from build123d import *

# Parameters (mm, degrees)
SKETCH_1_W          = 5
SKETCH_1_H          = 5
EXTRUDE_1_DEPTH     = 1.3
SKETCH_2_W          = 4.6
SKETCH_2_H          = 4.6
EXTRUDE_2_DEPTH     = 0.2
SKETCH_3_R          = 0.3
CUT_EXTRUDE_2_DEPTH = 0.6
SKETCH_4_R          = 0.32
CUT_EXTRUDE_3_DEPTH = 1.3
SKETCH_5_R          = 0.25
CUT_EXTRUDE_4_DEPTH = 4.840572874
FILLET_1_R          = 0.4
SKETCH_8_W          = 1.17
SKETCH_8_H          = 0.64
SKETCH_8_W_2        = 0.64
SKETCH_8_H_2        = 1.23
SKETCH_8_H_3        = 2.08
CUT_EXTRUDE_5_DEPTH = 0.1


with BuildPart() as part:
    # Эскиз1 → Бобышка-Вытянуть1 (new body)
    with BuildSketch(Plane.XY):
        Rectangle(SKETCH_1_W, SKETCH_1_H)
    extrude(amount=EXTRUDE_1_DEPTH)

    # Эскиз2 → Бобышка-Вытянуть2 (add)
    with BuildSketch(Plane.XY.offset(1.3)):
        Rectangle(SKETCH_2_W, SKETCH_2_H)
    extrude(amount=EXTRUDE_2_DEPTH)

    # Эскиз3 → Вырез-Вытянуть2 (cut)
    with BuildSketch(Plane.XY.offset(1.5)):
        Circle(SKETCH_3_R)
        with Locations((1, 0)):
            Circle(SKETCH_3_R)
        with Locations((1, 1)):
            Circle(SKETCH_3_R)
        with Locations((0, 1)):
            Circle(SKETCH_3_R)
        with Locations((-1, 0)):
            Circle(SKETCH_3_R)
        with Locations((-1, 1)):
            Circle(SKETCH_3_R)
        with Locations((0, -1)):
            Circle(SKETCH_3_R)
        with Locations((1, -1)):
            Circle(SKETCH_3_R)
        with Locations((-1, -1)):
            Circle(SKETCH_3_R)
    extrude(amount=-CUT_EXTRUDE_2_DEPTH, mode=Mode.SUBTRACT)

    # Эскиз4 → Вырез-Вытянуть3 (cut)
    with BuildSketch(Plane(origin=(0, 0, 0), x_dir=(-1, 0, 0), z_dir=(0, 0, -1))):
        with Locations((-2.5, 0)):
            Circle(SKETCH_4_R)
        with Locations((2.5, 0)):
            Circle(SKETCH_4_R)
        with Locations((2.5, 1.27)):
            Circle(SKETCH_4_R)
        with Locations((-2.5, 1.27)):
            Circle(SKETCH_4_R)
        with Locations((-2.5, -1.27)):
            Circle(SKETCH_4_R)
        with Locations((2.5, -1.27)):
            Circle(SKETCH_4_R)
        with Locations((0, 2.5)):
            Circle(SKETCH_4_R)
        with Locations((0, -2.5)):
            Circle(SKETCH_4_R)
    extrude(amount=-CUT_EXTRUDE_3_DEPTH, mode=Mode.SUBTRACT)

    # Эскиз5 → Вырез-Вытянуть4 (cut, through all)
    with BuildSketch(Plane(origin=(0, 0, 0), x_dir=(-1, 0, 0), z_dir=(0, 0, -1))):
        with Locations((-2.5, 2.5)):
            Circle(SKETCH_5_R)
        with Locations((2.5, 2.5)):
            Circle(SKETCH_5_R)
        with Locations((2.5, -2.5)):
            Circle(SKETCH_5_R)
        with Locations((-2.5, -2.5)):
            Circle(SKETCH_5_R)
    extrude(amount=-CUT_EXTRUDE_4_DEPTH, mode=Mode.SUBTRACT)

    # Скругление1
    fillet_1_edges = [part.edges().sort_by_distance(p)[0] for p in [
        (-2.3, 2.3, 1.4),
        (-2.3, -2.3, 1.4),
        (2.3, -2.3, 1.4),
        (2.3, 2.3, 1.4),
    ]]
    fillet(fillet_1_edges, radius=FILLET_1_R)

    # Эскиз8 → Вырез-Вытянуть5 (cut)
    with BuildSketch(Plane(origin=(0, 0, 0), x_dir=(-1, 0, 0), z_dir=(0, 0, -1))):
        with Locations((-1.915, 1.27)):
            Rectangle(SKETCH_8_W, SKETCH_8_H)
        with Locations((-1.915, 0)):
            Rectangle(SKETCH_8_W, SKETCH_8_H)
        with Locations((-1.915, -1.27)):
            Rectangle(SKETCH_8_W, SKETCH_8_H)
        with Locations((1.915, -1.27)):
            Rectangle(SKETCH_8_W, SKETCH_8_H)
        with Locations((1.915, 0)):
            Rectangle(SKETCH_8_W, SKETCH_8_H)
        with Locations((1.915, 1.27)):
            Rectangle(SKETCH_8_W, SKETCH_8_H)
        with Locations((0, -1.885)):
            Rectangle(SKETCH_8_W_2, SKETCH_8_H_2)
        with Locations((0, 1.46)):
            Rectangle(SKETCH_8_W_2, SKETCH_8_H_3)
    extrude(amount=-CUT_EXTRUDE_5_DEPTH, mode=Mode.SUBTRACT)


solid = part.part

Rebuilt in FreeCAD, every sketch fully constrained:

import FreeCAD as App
import Part
import Sketcher
Q = App.Units.Quantity


def edges_at(feature, points):
    """Names of the edges that pass closest to the given points."""
    edges = feature.Shape.Edges
    near = lambda p: min(range(len(edges)), key=lambda i: edges[i].distToShape(Part.Vertex(*p))[0])
    return sorted({f"Edge{near(p) + 1}" for p in points})

doc = App.newDocument("Part")
body = doc.addObject("PartDesign::Body", "Body")

# Sketch on XY plane
sketch1 = doc.addObject("Sketcher::SketchObject", "Sketch")
body.addObject(sketch1)
sketch1.AttachmentSupport = (doc.XY_Plane, [""])
sketch1.MapMode = "FlatFace"
sketch1.addGeometry([
    Part.LineSegment(App.Vector(-2, 2, 0), App.Vector(-2, -2, 0)),
    Part.LineSegment(App.Vector(-2, -2, 0), App.Vector(2, -2, 0)),
    Part.LineSegment(App.Vector(2, -2, 0), App.Vector(2, 2, 0)),
    Part.LineSegment(App.Vector(2, 2, 0), App.Vector(-2, 2, 0)),
], False)
sketch1.addConstraint([
    Sketcher.Constraint("Coincident", 0, 2, 1, 1),
    Sketcher.Constraint("Coincident", 1, 2, 2, 1),
    Sketcher.Constraint("Coincident", 2, 2, 3, 1),
    Sketcher.Constraint("Coincident", 3, 2, 0, 1),
    Sketcher.Constraint("Vertical", 0),
    Sketcher.Constraint("Horizontal", 1),
    Sketcher.Constraint("Vertical", 2),
    Sketcher.Constraint("Horizontal", 3),
    Sketcher.Constraint("Symmetric", 0, 2, 2, 2, -1, 1),
    Sketcher.Constraint("Equal", 3, 0),
    Sketcher.Constraint("DistanceX", 1, 1, 1, 2, Q("5 mm")),
])
pad1 = doc.addObject("PartDesign::Pad", "Pad")
body.addObject(pad1)
pad1.Profile = sketch1
pad1.Length = 1.3

# Sketch on XY plane
sketch2 = doc.addObject("Sketcher::SketchObject", "Sketch001")
body.addObject(sketch2)
sketch2.AttachmentSupport = (doc.XY_Plane, [""])
sketch2.MapMode = "FlatFace"
sketch2.AttachmentOffset = App.Placement(App.Vector(0, 0, 1.3), App.Rotation())
sketch2.addGeometry([
    Part.LineSegment(App.Vector(-2.3, 2.3, 0), App.Vector(-2.3, -2.3, 0)),
    Part.LineSegment(App.Vector(-2.3, -2.3, 0), App.Vector(2.3, -2.3, 0)),
    Part.LineSegment(App.Vector(2.3, -2.3, 0), App.Vector(2.3, 2.3, 0)),
    Part.LineSegment(App.Vector(2.3, 2.3, 0), App.Vector(-2.3, 2.3, 0)),
], False)
sketch2.addConstraint([
    Sketcher.Constraint("Coincident", 0, 2, 1, 1),
    Sketcher.Constraint("Coincident", 1, 2, 2, 1),
    Sketcher.Constraint("Coincident", 2, 2, 3, 1),
    Sketcher.Constraint("Coincident", 3, 2, 0, 1),
    Sketcher.Constraint("Vertical", 0),
    Sketcher.Constraint("Horizontal", 1),
    Sketcher.Constraint("Vertical", 2),
    Sketcher.Constraint("Horizontal", 3),
    Sketcher.Constraint("Symmetric", 0, 2, 2, 2, -1, 1),
    Sketcher.Constraint("Equal", 3, 0),
    Sketcher.Constraint("DistanceX", 1, 1, 1, 2, Q("4.6 mm")),
])
pad2 = doc.addObject("PartDesign::Pad", "Pad001")
body.addObject(pad2)
pad2.Profile = sketch2
pad2.Length = 0.2

# Sketch on XY plane
sketch3 = doc.addObject("Sketcher::SketchObject", "Sketch002")
body.addObject(sketch3)
sketch3.AttachmentSupport = (doc.XY_Plane, [""])
sketch3.MapMode = "FlatFace"
sketch3.AttachmentOffset = App.Placement(App.Vector(0, 0, 1.5), App.Rotation())
sketch3.addGeometry([
    Part.Circle(App.Vector(0, 0, 0), App.Vector(0, 0, 1), 0.3),  # 0
    Part.Circle(App.Vector(1, 0, 0), App.Vector(0, 0, 1), 0.3),  # 1
    Part.Circle(App.Vector(1, 1, 0), App.Vector(0, 0, 1), 0.3),  # 2
    Part.Circle(App.Vector(0, 1, 0), App.Vector(0, 0, 1), 0.3),  # 3
    Part.Circle(App.Vector(-1, 0, 0), App.Vector(0, 0, 1), 0.3),  # 4
    Part.Circle(App.Vector(-1, 1, 0), App.Vector(0, 0, 1), 0.3),  # 5
    Part.Circle(App.Vector(0, -1, 0), App.Vector(0, 0, 1), 0.3),  # 6
    Part.Circle(App.Vector(1, -1, 0), App.Vector(0, 0, 1), 0.3),  # 7
    Part.Circle(App.Vector(-1, -1, 0), App.Vector(0, 0, 1), 0.3),  # 8
], False)
sketch3.addConstraint([
    Sketcher.Constraint("Coincident", 0, 3, -1, 1),
    Sketcher.Constraint("Equal", 0, 1),
    Sketcher.Constraint("Equal", 1, 2),
    Sketcher.Constraint("Equal", 2, 3),
    Sketcher.Constraint("Equal", 3, 4),
    Sketcher.Constraint("Equal", 4, 5),
    Sketcher.Constraint("Equal", 5, 6),
    Sketcher.Constraint("Equal", 6, 7),
    Sketcher.Constraint("Equal", 7, 8),
    Sketcher.Constraint("Symmetric", 1, 3, 4, 3, -1, 1),
    Sketcher.Constraint("Symmetric", 3, 3, 6, 3, -1, 1),
    Sketcher.Constraint("Symmetric", 5, 3, 7, 3, -1, 1),
    Sketcher.Constraint("Symmetric", 2, 3, 8, 3, -1, 1),
    Sketcher.Constraint("Symmetric", 2, 3, 5, 3, -2),
    Sketcher.Constraint("PointOnObject", 1, 3, -1),
    Sketcher.Constraint("PointOnObject", 3, 3, -2),
    Sketcher.Constraint("Horizontal", 2, 3, 3, 3),
    Sketcher.Constraint("Vertical", 1, 3, 2, 3),
    Sketcher.Constraint("Diameter", 0, Q("0.6 mm")),
    Sketcher.Constraint("DistanceX", -1, 1, 1, 3, Q("1 mm")),
    Sketcher.Constraint("DistanceY", -1, 1, 2, 3, Q("1 mm")),
])
pocket1 = doc.addObject("PartDesign::Pocket", "Pocket")
body.addObject(pocket1)
pocket1.Profile = sketch3
pocket1.Length = 0.6

# Sketch on XY plane
sketch4 = doc.addObject("Sketcher::SketchObject", "Sketch003")
body.addObject(sketch4)
sketch4.AttachmentSupport = (doc.XY_Plane, [""])
sketch4.MapMode = "FlatFace"
sketch4.addGeometry([
    Part.Circle(App.Vector(2.5, 0, 0), App.Vector(0, 0, 1), 0.32),  # 0
    Part.Circle(App.Vector(-2.5, 0, 0), App.Vector(0, 0, 1), 0.32),  # 1
    Part.Circle(App.Vector(-2.5, 1.27, 0), App.Vector(0, 0, 1), 0.32),  # 2
    Part.Circle(App.Vector(2.5, 1.27, 0), App.Vector(0, 0, 1), 0.32),  # 3
    Part.Circle(App.Vector(2.5, -1.27, 0), App.Vector(0, 0, 1), 0.32),  # 4
    Part.Circle(App.Vector(-2.5, -1.27, 0), App.Vector(0, 0, 1), 0.32),  # 5
    Part.Circle(App.Vector(0, 2.5, 0), App.Vector(0, 0, 1), 0.32),  # 6
    Part.Circle(App.Vector(0, -2.5, 0), App.Vector(0, 0, 1), 0.32),  # 7
], False)
sketch4.addConstraint([
    Sketcher.Constraint("Equal", 0, 1),
    Sketcher.Constraint("Equal", 1, 2),
    Sketcher.Constraint("Equal", 2, 3),
    Sketcher.Constraint("Equal", 3, 4),
    Sketcher.Constraint("Equal", 4, 5),
    Sketcher.Constraint("Equal", 5, 6),
    Sketcher.Constraint("Equal", 6, 7),
    Sketcher.Constraint("Symmetric", 0, 3, 1, 3, -1, 1),
    Sketcher.Constraint("Symmetric", 2, 3, 4, 3, -1, 1),
    Sketcher.Constraint("Symmetric", 3, 3, 5, 3, -1, 1),
    Sketcher.Constraint("Symmetric", 6, 3, 7, 3, -1, 1),
    Sketcher.Constraint("Symmetric", 2, 3, 3, 3, -2),
    Sketcher.Constraint("PointOnObject", 0, 3, -1),
    Sketcher.Constraint("PointOnObject", 6, 3, -2),
    Sketcher.Constraint("Vertical", 1, 3, 2, 3),
    Sketcher.Constraint("Diameter", 0, Q("0.64 mm")),
    Sketcher.Constraint("DistanceX", 1, 3, 0, 3, Q("5 mm")),
    Sketcher.Constraint("DistanceY", -1, 1, 6, 3, Q("2.5 mm")),
    Sketcher.Constraint("DistanceY", -1, 1, 2, 3, Q("1.27 mm")),
])
pocket2 = doc.addObject("PartDesign::Pocket", "Pocket001")
body.addObject(pocket2)
pocket2.Profile = sketch4
pocket2.Length = 1.3
pocket2.Reversed = True

# Sketch on XY plane
sketch5 = doc.addObject("Sketcher::SketchObject", "Sketch004")
body.addObject(sketch5)
sketch5.AttachmentSupport = (doc.XY_Plane, [""])
sketch5.MapMode = "FlatFace"
sketch5.addGeometry([
    Part.Circle(App.Vector(2.5, 2.5, 0), App.Vector(0, 0, 1), 0.25),
    Part.Circle(App.Vector(-2.5, 2.5, 0), App.Vector(0, 0, 1), 0.25),
    Part.Circle(App.Vector(-2.5, -2.5, 0), App.Vector(0, 0, 1), 0.25),
    Part.Circle(App.Vector(2.5, -2.5, 0), App.Vector(0, 0, 1), 0.25),
], False)
sketch5.addConstraint([
    Sketcher.Constraint("Equal", 0, 1),
    Sketcher.Constraint("Equal", 1, 2),
    Sketcher.Constraint("Equal", 2, 3),
    Sketcher.Constraint("Symmetric", 0, 3, 2, 3, -1, 1),
    Sketcher.Constraint("Symmetric", 1, 3, 3, 3, -1, 1),
    Sketcher.Constraint("Symmetric", 0, 3, 1, 3, -2),
    Sketcher.Constraint("Diameter", 0, Q("0.5 mm")),
    Sketcher.Constraint("DistanceX", 1, 3, 0, 3, Q("5 mm")),
    Sketcher.Constraint("DistanceY", 2, 3, 1, 3, Q("5 mm")),
])
pocket3 = doc.addObject("PartDesign::Pocket", "Pocket002")
body.addObject(pocket3)
pocket3.Profile = sketch5
pocket3.Type = "ThroughAll"
pocket3.Reversed = True
doc.recompute()

fillet = doc.addObject("PartDesign::Fillet", "Fillet")
body.addObject(fillet)
fillet.Base = (pocket3, edges_at(pocket3, [
    (-2.3, 2.3, 1.4),
    (-2.3, -2.3, 1.4),
    (2.3, -2.3, 1.4),
    (2.3, 2.3, 1.4),
]))
fillet.Radius = 0.4

# Sketch on XY plane
sketch6 = doc.addObject("Sketcher::SketchObject", "Sketch005")
body.addObject(sketch6)
sketch6.AttachmentSupport = (doc.XY_Plane, [""])
sketch6.MapMode = "FlatFace"
sketch6.addGeometry([
    Part.LineSegment(App.Vector(2.5, 1.6, 0), App.Vector(2.5, 0.9, 0)),  # 0
    Part.LineSegment(App.Vector(2.5, 0.9, 0), App.Vector(1.3, 0.9, 0)),  # 1
    Part.LineSegment(App.Vector(1.3, 0.9, 0), App.Vector(1.3, 1.6, 0)),  # 2
    Part.LineSegment(App.Vector(1.3, 1.6, 0), App.Vector(2.5, 1.6, 0)),  # 3
    Part.LineSegment(App.Vector(2.5, 0.3, 0), App.Vector(2.5, -0.3, 0)),  # 4
    Part.LineSegment(App.Vector(2.5, -0.3, 0), App.Vector(1.3, -0.3, 0)),  # 5
    Part.LineSegment(App.Vector(1.3, -0.3, 0), App.Vector(1.3, 0.3, 0)),  # 6
    Part.LineSegment(App.Vector(1.3, 0.3, 0), App.Vector(2.5, 0.3, 0)),  # 7
    Part.LineSegment(App.Vector(2.5, -0.9, 0), App.Vector(2.5, -1.6, 0)),  # 8
    Part.LineSegment(App.Vector(2.5, -1.6, 0), App.Vector(1.3, -1.6, 0)),  # 9
    Part.LineSegment(App.Vector(1.3, -1.6, 0), App.Vector(1.3, -0.9, 0)),  # 10
    Part.LineSegment(App.Vector(1.3, -0.9, 0), App.Vector(2.5, -0.9, 0)),  # 11
    Part.LineSegment(App.Vector(-1.3, -0.9, 0), App.Vector(-1.3, -1.6, 0)),  # 12
    Part.LineSegment(App.Vector(-1.3, -1.6, 0), App.Vector(-2.5, -1.6, 0)),  # 13
    Part.LineSegment(App.Vector(-2.5, -1.6, 0), App.Vector(-2.5, -0.9, 0)),  # 14
    Part.LineSegment(App.Vector(-2.5, -0.9, 0), App.Vector(-1.3, -0.9, 0)),  # 15
    Part.LineSegment(App.Vector(-1.3, 0.3, 0), App.Vector(-1.3, -0.3, 0)),  # 16
    Part.LineSegment(App.Vector(-1.3, -0.3, 0), App.Vector(-2.5, -0.3, 0)),  # 17
    Part.LineSegment(App.Vector(-2.5, -0.3, 0), App.Vector(-2.5, 0.3, 0)),  # 18
    Part.LineSegment(App.Vector(-2.5, 0.3, 0), App.Vector(-1.3, 0.3, 0)),  # 19
    Part.LineSegment(App.Vector(-1.3, 1.6, 0), App.Vector(-1.3, 0.9, 0)),  # 20
    Part.LineSegment(App.Vector(-1.3, 0.9, 0), App.Vector(-2.5, 0.9, 0)),  # 21
    Part.LineSegment(App.Vector(-2.5, 0.9, 0), App.Vector(-2.5, 1.6, 0)),  # 22
    Part.LineSegment(App.Vector(-2.5, 1.6, 0), App.Vector(-1.3, 1.6, 0)),  # 23
    Part.LineSegment(App.Vector(0.3, -1.3, 0), App.Vector(0.3, -2.5, 0)),  # 24
    Part.LineSegment(App.Vector(0.3, -2.5, 0), App.Vector(-0.3, -2.5, 0)),  # 25
    Part.LineSegment(App.Vector(-0.3, -2.5, 0), App.Vector(-0.3, -1.3, 0)),  # 26
    Part.LineSegment(App.Vector(-0.3, -1.3, 0), App.Vector(0.3, -1.3, 0)),  # 27
    Part.LineSegment(App.Vector(0.3, 2.5, 0), App.Vector(0.3, 0.4, 0)),  # 28
    Part.LineSegment(App.Vector(0.3, 0.4, 0), App.Vector(-0.3, 0.4, 0)),  # 29
    Part.LineSegment(App.Vector(-0.3, 0.4, 0), App.Vector(-0.3, 2.5, 0)),  # 30
    Part.LineSegment(App.Vector(-0.3, 2.5, 0), App.Vector(0.3, 2.5, 0)),  # 31
], False)
sketch6.addConstraint([
    Sketcher.Constraint("Coincident", 0, 2, 1, 1),
    Sketcher.Constraint("Coincident", 1, 2, 2, 1),
    Sketcher.Constraint("Coincident", 2, 2, 3, 1),
    Sketcher.Constraint("Coincident", 3, 2, 0, 1),
    Sketcher.Constraint("Coincident", 4, 2, 5, 1),
    Sketcher.Constraint("Coincident", 5, 2, 6, 1),
    Sketcher.Constraint("Coincident", 6, 2, 7, 1),
    Sketcher.Constraint("Coincident", 7, 2, 4, 1),
    Sketcher.Constraint("Coincident", 8, 2, 9, 1),
    Sketcher.Constraint("Coincident", 9, 2, 10, 1),
    Sketcher.Constraint("Coincident", 10, 2, 11, 1),
    Sketcher.Constraint("Coincident", 11, 2, 8, 1),
    Sketcher.Constraint("Coincident", 12, 2, 13, 1),
    Sketcher.Constraint("Coincident", 13, 2, 14, 1),
    Sketcher.Constraint("Coincident", 14, 2, 15, 1),
    Sketcher.Constraint("Coincident", 15, 2, 12, 1),
    Sketcher.Constraint("Coincident", 16, 2, 17, 1),
    Sketcher.Constraint("Coincident", 17, 2, 18, 1),
    Sketcher.Constraint("Coincident", 18, 2, 19, 1),
    Sketcher.Constraint("Coincident", 19, 2, 16, 1),
    Sketcher.Constraint("Coincident", 20, 2, 21, 1),
    Sketcher.Constraint("Coincident", 21, 2, 22, 1),
    Sketcher.Constraint("Coincident", 22, 2, 23, 1),
    Sketcher.Constraint("Coincident", 23, 2, 20, 1),
    Sketcher.Constraint("Coincident", 24, 2, 25, 1),
    Sketcher.Constraint("Coincident", 25, 2, 26, 1),
    Sketcher.Constraint("Coincident", 26, 2, 27, 1),
    Sketcher.Constraint("Coincident", 27, 2, 24, 1),
    Sketcher.Constraint("Coincident", 28, 2, 29, 1),
    Sketcher.Constraint("Coincident", 29, 2, 30, 1),
    Sketcher.Constraint("Coincident", 30, 2, 31, 1),
    Sketcher.Constraint("Coincident", 31, 2, 28, 1),
    Sketcher.Constraint("Vertical", 0),
    Sketcher.Constraint("Horizontal", 1),
    Sketcher.Constraint("Vertical", 2),
    Sketcher.Constraint("Horizontal", 3),
    Sketcher.Constraint("Vertical", 4),
    Sketcher.Constraint("Horizontal", 5),
    Sketcher.Constraint("Vertical", 6),
    Sketcher.Constraint("Horizontal", 7),
    Sketcher.Constraint("Vertical", 8),
    Sketcher.Constraint("Horizontal", 9),
    Sketcher.Constraint("Vertical", 10),
    Sketcher.Constraint("Horizontal", 11),
    Sketcher.Constraint("Vertical", 12),
    Sketcher.Constraint("Horizontal", 13),
    Sketcher.Constraint("Vertical", 14),
    Sketcher.Constraint("Horizontal", 15),
    Sketcher.Constraint("Vertical", 16),
    Sketcher.Constraint("Horizontal", 17),
    Sketcher.Constraint("Vertical", 18),
    Sketcher.Constraint("Horizontal", 19),
    Sketcher.Constraint("Vertical", 20),
    Sketcher.Constraint("Horizontal", 21),
    Sketcher.Constraint("Vertical", 22),
    Sketcher.Constraint("Horizontal", 23),
    Sketcher.Constraint("Vertical", 24),
    Sketcher.Constraint("Horizontal", 25),
    Sketcher.Constraint("Vertical", 26),
    Sketcher.Constraint("Horizontal", 27),
    Sketcher.Constraint("Vertical", 28),
    Sketcher.Constraint("Horizontal", 29),
    Sketcher.Constraint("Vertical", 30),
    Sketcher.Constraint("Horizontal", 31),
    Sketcher.Constraint("Symmetric", 2, 2, 12, 2, -1, 1),
    Sketcher.Constraint("Symmetric", 0, 2, 14, 2, -1, 1),
    Sketcher.Constraint("Symmetric", 6, 2, 16, 2, -1, 1),
    Sketcher.Constraint("Symmetric", 4, 2, 18, 2, -1, 1),
    Sketcher.Constraint("Symmetric", 10, 2, 20, 2, -1, 1),
    Sketcher.Constraint("Symmetric", 8, 2, 22, 2, -1, 1),
    Sketcher.Constraint("Symmetric", 24, 2, 30, 2, -1, 1),
    Sketcher.Constraint("Symmetric", 9, 2, 12, 2, -2),
    Sketcher.Constraint("Symmetric", 11, 2, 14, 2, -2),
    Sketcher.Constraint("Horizontal", 5, 2, 16, 2),
    Sketcher.Constraint("Vertical", 3, 2, 4, 2),
    Sketcher.Constraint("Vertical", 2, 2, 5, 2),
    Sketcher.Constraint("Vertical", 27, 2, 28, 2),
    Sketcher.Constraint("Vertical", 26, 2, 29, 2),
    Sketcher.Constraint("Equal", 31, 0),
    Sketcher.Constraint("Equal", 2, 4),
    Sketcher.Constraint("DistanceX", 1, 2, 1, 1, Q("1.17 mm")),
    Sketcher.Constraint("DistanceX", 25, 2, 25, 1, Q("0.64 mm")),
    Sketcher.Constraint("DistanceY", 24, 2, 24, 1, Q("1.23 mm")),
    Sketcher.Constraint("DistanceY", 28, 2, 28, 1, Q("2.08 mm")),
    Sketcher.Constraint("DistanceX", -1, 1, 0, 2, Q("2.5 mm")),
    Sketcher.Constraint("DistanceY", 24, 2, -1, 1, Q("2.5 mm")),
    Sketcher.Constraint("DistanceY", 15, 2, 20, 2, Q("1.9 mm")),
])
pocket4 = doc.addObject("PartDesign::Pocket", "Pocket003")
body.addObject(pocket4)
pocket4.Profile = sketch6
pocket4.Length = 0.1
pocket4.Reversed = True

doc.recompute()
